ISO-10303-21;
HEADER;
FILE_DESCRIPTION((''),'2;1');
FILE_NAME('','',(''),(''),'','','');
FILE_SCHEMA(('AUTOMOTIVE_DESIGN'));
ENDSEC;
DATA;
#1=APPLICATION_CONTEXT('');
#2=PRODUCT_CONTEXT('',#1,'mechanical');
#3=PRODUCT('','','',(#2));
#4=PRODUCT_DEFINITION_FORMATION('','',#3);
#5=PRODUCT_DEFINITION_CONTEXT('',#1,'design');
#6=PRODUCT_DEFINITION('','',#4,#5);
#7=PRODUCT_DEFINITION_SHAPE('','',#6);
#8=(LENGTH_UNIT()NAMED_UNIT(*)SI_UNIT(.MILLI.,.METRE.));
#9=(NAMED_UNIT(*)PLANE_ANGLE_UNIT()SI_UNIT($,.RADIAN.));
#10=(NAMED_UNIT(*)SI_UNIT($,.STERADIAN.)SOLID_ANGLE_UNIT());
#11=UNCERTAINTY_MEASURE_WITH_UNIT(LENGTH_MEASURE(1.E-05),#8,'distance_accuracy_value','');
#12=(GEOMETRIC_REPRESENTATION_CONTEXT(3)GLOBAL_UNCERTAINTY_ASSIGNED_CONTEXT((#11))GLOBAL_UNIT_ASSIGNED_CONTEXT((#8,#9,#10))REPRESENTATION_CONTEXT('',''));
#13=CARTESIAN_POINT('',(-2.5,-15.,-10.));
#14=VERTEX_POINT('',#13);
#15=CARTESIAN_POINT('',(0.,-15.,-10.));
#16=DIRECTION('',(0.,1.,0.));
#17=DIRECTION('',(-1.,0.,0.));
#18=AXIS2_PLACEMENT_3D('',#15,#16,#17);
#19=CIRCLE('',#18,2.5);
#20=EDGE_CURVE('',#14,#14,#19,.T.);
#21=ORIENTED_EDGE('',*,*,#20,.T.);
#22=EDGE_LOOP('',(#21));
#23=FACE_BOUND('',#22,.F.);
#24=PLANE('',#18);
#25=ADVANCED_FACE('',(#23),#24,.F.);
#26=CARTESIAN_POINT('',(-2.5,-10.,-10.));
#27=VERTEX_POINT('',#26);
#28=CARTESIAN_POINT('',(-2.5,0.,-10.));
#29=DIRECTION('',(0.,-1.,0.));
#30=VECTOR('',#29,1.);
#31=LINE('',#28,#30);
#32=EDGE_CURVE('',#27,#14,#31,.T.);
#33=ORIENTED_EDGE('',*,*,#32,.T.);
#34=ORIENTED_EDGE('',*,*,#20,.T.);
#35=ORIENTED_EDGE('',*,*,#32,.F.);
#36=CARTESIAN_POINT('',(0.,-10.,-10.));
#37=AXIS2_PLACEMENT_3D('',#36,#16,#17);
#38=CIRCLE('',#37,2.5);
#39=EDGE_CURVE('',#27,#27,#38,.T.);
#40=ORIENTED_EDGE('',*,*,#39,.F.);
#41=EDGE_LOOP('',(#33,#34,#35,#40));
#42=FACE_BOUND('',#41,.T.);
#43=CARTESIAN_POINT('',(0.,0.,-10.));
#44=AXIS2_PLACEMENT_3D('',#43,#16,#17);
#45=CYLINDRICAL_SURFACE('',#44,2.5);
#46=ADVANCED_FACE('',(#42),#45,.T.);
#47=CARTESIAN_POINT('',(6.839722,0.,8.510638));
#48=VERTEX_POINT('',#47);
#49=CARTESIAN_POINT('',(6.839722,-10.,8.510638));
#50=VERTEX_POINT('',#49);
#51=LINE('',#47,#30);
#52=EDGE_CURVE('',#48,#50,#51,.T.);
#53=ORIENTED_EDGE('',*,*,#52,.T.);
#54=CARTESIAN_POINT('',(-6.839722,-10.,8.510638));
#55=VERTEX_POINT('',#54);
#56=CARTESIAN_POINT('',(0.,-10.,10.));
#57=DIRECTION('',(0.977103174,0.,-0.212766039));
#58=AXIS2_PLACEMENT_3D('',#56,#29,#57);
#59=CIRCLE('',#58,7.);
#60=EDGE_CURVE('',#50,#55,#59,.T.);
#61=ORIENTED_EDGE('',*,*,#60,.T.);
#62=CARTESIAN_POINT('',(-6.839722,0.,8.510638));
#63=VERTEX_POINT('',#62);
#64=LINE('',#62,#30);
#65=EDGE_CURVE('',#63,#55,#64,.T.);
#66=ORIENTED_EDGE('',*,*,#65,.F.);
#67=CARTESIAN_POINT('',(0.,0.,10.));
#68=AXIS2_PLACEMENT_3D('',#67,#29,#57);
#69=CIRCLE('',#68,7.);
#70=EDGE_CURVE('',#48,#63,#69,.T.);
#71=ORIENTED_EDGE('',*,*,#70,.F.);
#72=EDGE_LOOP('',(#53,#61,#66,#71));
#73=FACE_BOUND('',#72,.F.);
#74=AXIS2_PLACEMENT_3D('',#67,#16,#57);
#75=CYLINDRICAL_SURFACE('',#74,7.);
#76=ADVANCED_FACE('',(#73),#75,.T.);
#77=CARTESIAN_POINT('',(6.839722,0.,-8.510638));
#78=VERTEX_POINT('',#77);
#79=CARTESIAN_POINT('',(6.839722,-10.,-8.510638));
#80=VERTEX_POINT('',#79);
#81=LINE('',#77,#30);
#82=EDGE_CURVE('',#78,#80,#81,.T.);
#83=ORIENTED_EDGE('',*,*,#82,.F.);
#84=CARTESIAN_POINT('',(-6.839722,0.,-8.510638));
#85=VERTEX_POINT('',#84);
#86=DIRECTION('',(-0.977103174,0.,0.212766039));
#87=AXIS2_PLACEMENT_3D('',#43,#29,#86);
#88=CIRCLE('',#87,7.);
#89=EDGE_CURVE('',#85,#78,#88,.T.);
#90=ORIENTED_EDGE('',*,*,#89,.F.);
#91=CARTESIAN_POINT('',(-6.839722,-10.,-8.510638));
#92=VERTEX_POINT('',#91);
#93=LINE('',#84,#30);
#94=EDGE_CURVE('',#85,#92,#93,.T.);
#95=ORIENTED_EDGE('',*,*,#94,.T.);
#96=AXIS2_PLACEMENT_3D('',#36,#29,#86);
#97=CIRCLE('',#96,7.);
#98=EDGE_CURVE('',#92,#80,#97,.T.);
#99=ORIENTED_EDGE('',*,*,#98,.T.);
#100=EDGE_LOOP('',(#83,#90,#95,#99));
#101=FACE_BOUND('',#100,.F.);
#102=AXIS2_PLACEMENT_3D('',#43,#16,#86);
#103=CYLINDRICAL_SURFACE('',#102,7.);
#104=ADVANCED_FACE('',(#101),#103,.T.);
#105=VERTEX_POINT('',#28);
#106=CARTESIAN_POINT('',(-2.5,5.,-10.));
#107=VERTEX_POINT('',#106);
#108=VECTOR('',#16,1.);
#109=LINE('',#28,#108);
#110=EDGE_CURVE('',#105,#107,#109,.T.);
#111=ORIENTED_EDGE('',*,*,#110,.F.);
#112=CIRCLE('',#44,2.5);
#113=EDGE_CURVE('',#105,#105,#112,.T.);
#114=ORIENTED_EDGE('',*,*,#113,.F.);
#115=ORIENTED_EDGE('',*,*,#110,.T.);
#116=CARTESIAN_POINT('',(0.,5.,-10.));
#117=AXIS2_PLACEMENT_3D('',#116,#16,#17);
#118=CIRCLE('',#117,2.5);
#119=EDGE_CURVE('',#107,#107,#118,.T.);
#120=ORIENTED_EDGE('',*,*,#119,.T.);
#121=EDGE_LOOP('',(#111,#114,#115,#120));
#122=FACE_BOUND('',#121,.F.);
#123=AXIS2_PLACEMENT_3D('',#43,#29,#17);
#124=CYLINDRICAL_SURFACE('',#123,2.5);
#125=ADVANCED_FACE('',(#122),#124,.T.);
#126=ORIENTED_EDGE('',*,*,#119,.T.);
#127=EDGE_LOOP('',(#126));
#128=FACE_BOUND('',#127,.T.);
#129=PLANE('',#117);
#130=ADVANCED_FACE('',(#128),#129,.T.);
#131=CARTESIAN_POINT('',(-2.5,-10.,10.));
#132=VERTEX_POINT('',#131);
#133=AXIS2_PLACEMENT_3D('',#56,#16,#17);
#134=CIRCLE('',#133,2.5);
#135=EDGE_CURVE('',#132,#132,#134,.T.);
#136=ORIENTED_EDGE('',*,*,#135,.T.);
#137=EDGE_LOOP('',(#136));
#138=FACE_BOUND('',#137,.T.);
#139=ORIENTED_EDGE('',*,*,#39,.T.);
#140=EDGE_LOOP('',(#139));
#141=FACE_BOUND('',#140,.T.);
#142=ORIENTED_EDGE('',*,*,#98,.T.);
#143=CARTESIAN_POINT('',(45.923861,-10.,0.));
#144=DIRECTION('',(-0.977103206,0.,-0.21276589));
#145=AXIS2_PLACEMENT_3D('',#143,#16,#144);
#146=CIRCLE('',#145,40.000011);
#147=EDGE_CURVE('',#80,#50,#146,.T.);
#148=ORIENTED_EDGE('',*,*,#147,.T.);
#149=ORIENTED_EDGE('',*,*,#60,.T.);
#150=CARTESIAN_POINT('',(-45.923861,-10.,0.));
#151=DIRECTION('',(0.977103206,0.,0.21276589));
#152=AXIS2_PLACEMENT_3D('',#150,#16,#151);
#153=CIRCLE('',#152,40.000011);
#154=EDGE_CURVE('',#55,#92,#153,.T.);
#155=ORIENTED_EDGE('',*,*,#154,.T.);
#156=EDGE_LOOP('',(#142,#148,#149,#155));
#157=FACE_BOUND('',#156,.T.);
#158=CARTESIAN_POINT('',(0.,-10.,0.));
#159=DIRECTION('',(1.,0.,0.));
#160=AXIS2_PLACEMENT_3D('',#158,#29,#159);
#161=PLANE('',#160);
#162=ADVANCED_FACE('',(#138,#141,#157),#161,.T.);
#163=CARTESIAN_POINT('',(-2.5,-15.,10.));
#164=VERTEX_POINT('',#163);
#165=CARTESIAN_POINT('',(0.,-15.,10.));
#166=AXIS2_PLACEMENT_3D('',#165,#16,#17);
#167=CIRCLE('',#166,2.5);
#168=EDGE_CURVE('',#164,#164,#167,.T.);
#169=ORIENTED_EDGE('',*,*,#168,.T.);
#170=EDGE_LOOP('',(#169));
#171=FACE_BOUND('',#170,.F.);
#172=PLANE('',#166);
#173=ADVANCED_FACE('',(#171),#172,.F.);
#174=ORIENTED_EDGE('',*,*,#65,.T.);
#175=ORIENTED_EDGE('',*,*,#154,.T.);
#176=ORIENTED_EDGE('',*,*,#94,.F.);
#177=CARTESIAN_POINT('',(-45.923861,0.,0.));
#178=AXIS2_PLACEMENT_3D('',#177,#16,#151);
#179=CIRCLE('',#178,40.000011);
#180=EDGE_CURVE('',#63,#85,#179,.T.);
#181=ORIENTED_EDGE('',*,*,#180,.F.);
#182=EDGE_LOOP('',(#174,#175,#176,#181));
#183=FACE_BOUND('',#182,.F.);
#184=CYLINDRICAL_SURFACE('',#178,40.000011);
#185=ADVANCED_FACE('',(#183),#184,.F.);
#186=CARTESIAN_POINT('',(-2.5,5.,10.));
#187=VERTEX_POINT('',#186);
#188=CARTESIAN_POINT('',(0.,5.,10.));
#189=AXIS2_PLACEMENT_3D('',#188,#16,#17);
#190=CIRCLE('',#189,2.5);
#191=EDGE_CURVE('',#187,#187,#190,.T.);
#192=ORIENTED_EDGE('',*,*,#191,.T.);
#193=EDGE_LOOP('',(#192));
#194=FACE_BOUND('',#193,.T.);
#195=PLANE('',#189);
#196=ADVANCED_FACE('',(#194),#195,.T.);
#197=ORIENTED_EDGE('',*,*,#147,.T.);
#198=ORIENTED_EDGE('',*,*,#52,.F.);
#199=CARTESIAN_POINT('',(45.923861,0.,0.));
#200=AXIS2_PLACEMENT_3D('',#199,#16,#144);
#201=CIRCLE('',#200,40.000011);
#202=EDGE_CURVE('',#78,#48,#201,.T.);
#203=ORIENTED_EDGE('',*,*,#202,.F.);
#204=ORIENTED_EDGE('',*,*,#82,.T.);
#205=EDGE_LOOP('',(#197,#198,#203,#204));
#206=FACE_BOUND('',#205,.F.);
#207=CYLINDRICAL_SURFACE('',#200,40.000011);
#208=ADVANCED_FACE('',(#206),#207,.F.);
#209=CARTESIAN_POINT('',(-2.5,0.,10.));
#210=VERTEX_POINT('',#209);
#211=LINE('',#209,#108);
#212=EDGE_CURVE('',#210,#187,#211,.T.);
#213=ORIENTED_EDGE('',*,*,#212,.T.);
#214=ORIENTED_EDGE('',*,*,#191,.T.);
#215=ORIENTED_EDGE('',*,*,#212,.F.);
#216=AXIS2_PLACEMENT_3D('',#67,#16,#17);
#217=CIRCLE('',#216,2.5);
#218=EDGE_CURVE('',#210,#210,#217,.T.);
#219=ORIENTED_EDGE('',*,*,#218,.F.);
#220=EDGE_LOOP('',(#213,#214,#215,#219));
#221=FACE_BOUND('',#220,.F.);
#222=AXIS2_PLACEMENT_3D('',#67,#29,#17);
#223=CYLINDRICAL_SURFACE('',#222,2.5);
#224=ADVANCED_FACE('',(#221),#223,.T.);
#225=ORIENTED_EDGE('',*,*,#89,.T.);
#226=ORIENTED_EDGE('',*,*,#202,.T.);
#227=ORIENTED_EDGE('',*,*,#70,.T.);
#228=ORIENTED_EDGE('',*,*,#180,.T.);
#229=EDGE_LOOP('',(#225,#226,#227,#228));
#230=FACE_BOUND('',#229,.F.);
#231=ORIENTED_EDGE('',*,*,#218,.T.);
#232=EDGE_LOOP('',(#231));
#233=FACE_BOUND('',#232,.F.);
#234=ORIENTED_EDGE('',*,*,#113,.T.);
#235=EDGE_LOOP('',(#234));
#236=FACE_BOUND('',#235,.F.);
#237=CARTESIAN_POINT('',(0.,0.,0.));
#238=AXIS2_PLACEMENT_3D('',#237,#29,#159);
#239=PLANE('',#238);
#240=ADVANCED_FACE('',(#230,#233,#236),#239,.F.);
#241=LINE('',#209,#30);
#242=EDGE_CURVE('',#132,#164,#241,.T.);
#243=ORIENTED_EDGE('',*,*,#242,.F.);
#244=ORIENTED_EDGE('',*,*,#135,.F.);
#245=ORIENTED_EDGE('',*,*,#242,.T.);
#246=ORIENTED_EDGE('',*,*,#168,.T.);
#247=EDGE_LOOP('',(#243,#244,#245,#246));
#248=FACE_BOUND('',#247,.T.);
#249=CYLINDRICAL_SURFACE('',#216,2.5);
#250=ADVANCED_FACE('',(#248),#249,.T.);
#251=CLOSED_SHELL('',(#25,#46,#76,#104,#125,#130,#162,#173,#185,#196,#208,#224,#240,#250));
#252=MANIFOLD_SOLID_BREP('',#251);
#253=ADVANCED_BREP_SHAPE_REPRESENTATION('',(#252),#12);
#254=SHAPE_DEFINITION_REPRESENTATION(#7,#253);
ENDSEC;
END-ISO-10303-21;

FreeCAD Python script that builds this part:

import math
import FreeCAD as App
import Part
import Sketcher
from FreeCAD import Vector

doc = App.newDocument("Part")
body = doc.addObject("PartDesign::Body", "Body")

sketch1 = doc.addObject("Sketcher::SketchObject", "Sketch")
body.addObject(sketch1)
sketch1.AttachmentSupport = (doc.XZ_Plane, [""])
sketch1.MapMode = "FlatFace"
sketch1.addGeometry([
    Part.ArcOfCircle(Part.Circle(Vector(-46, 0, 0), Vector(0, 0, 1), 40), math.radians(-12), math.radians(12)),
    Part.ArcOfCircle(Part.Circle(Vector(0, -10, 0), Vector(0, 0, 1), 7), math.radians(168), math.radians(372)),
    Part.ArcOfCircle(Part.Circle(Vector(46, 0, 0), Vector(0, 0, 1), 40), math.radians(168), math.radians(192)),
    Part.ArcOfCircle(Part.Circle(Vector(0, 10, 0), Vector(0, 0, 1), 7), math.radians(-12), math.radians(192)),
], False)
sketch1.addConstraint([
    Sketcher.Constraint("Tangent", 0, 1, 1, 1),
    Sketcher.Constraint("Tangent", 1, 2, 2, 2),
    Sketcher.Constraint("Tangent", 2, 1, 3, 1),
    Sketcher.Constraint("Tangent", 3, 2, 0, 2),
    Sketcher.Constraint("Equal", 0, 2),
    Sketcher.Constraint("Equal", 1, 3),
    Sketcher.Constraint("Symmetric", 0, 3, 2, 3, -1, 1),
    Sketcher.Constraint("PointOnObject", 0, 3, -1),
    Sketcher.Constraint("Radius", 1, 7.0),
    Sketcher.Constraint("DistanceY", 1, 3, -1, 1, 10.0),
    Sketcher.Constraint("Radius", 0, 40.000011),
])
pad1 = doc.addObject("PartDesign::Pad", "Pad")
body.addObject(pad1)
pad1.Profile = sketch1
pad1.Length = 10

sketch2 = doc.addObject("Sketcher::SketchObject", "Sketch001")
body.addObject(sketch2)
sketch2.AttachmentSupport = (doc.XZ_Plane, [""])
sketch2.MapMode = "FlatFace"
sketch2.addGeometry([
    Part.Circle(Vector(0, 10, 0), Vector(0, 0, 1), 2.5),
    Part.Circle(Vector(0, -10, 0), Vector(0, 0, 1), 2.5),
], False)
sketch2.addConstraint([
    Sketcher.Constraint("Equal", 0, 1),
    Sketcher.Constraint("Symmetric", 0, 3, 1, 3, -1, 1),
    Sketcher.Constraint("PointOnObject", 0, 3, -2),
    Sketcher.Constraint("Diameter", 0, 5.0),
    Sketcher.Constraint("DistanceY", -1, 1, 0, 3, 10.0),
])
pad2 = doc.addObject("PartDesign::Pad", "Pad001")
body.addObject(pad2)
pad2.Profile = sketch2
pad2.Type = "TwoLengths"
pad2.Length = 5
pad2.Length2 = 15
pad2.Reversed = True

doc.recompute()
